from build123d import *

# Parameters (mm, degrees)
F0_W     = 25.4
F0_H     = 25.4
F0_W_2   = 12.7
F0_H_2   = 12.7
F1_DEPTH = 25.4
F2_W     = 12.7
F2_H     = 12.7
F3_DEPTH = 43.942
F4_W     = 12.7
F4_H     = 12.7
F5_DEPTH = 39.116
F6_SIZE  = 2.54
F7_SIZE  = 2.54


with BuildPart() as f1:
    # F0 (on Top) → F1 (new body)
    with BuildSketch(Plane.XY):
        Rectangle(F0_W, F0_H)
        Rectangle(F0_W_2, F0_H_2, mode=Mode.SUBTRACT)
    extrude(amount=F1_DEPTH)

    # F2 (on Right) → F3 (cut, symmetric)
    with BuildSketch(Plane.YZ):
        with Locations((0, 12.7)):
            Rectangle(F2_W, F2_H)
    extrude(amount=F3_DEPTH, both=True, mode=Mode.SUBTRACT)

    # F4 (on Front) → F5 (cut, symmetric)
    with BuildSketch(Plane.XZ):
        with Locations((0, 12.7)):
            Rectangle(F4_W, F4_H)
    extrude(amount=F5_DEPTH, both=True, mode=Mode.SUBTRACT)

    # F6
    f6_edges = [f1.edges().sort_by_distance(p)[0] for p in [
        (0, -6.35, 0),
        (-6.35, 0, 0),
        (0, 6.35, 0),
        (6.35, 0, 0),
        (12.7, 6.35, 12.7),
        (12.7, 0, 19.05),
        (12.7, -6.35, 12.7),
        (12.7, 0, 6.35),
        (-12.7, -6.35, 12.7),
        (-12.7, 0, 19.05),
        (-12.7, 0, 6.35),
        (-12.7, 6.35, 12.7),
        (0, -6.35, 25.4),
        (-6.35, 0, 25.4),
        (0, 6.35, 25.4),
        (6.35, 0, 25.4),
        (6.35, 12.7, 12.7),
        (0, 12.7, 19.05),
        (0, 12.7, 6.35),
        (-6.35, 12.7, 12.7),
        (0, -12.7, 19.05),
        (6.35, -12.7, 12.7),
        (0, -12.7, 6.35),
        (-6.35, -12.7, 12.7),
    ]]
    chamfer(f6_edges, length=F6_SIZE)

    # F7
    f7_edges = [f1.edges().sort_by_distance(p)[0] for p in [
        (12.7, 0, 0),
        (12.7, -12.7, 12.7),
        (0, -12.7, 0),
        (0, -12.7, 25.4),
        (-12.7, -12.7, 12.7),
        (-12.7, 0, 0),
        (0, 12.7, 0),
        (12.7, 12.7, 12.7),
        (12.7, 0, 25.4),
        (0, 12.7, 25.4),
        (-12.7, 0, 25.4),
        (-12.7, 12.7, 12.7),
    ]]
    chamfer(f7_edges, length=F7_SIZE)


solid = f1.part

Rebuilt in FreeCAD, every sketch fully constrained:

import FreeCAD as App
import Part
import Sketcher
from FreeCAD import Vector
Q = App.Units.Quantity


def edges_at(feature, points):
    """Names of the edges that pass closest to the given points."""
    edges = feature.Shape.Edges
    near = lambda p: min(range(len(edges)), key=lambda i: edges[i].distToShape(Part.Vertex(*p))[0])
    return sorted({f"Edge{near(p) + 1}" for p in points})

doc = App.newDocument("Part")
body = doc.addObject("PartDesign::Body", "Body")

# Sketch on XY plane
sketch1 = body.newObject("Sketcher::SketchObject", "Sketch")
sketch1.AttachmentSupport = (doc.getObject("XY_Plane"), [""])
sketch1.MapMode = "FlatFace"
sketch1.addGeometry([
    Part.LineSegment(Vector(-12.7, 12.7, 0), Vector(-12.7, -12.7, 0)),  # 0
    Part.LineSegment(Vector(-12.7, -12.7, 0), Vector(12.7, -12.7, 0)),  # 1
    Part.LineSegment(Vector(12.7, -12.7, 0), Vector(12.7, 12.7, 0)),  # 2
    Part.LineSegment(Vector(12.7, 12.7, 0), Vector(-12.7, 12.7, 0)),  # 3
    Part.LineSegment(Vector(6.35, -6.35, 0), Vector(-6.35, -6.35, 0)),  # 4
    Part.LineSegment(Vector(-6.35, -6.35, 0), Vector(-6.35, 6.35, 0)),  # 5
    Part.LineSegment(Vector(-6.35, 6.35, 0), Vector(6.35, 6.35, 0)),  # 6
    Part.LineSegment(Vector(6.35, 6.35, 0), Vector(6.35, -6.35, 0)),  # 7
], False)
sketch1.addConstraint([
    Sketcher.Constraint("Coincident", 0, 2, 1, 1),
    Sketcher.Constraint("Coincident", 1, 2, 2, 1),
    Sketcher.Constraint("Coincident", 2, 2, 3, 1),
    Sketcher.Constraint("Coincident", 3, 2, 0, 1),
    Sketcher.Constraint("Coincident", 4, 2, 5, 1),
    Sketcher.Constraint("Coincident", 5, 2, 6, 1),
    Sketcher.Constraint("Coincident", 6, 2, 7, 1),
    Sketcher.Constraint("Coincident", 7, 2, 4, 1),
    Sketcher.Constraint("Vertical", 0),
    Sketcher.Constraint("Horizontal", 1),
    Sketcher.Constraint("Vertical", 2),
    Sketcher.Constraint("Horizontal", 3),
    Sketcher.Constraint("Horizontal", 4),
    Sketcher.Constraint("Vertical", 5),
    Sketcher.Constraint("Horizontal", 6),
    Sketcher.Constraint("Vertical", 7),
    Sketcher.Constraint("Symmetric", 0, 2, 2, 2, -1, 1),
    Sketcher.Constraint("Symmetric", 4, 2, 6, 2, -1, 1),
    Sketcher.Constraint("Equal", 3, 0),
    Sketcher.Constraint("Equal", 6, 5),
    Sketcher.Constraint("DistanceX", 1, 1, 1, 2, Q("1 in")),
    Sketcher.Constraint("DistanceX", 4, 2, 4, 1, Q("0.5 in")),
])
pad1 = body.newObject("PartDesign::Pad", "Pad")
pad1.Profile = sketch1
pad1.Length = Q("1 in")

# Sketch on YZ plane
sketch2 = body.newObject("Sketcher::SketchObject", "Sketch001")
sketch2.AttachmentSupport = (doc.getObject("YZ_Plane"), [""])
sketch2.MapMode = "FlatFace"
sketch2.addGeometry([
    Part.LineSegment(Vector(-6.35, 19.05, 0), Vector(-6.35, 6.35, 0)),
    Part.LineSegment(Vector(-6.35, 6.35, 0), Vector(6.35, 6.35, 0)),
    Part.LineSegment(Vector(6.35, 6.35, 0), Vector(6.35, 19.05, 0)),
    Part.LineSegment(Vector(6.35, 19.05, 0), Vector(-6.35, 19.05, 0)),
], False)
sketch2.addConstraint([
    Sketcher.Constraint("Coincident", 0, 2, 1, 1),
    Sketcher.Constraint("Coincident", 1, 2, 2, 1),
    Sketcher.Constraint("Coincident", 2, 2, 3, 1),
    Sketcher.Constraint("Coincident", 3, 2, 0, 1),
    Sketcher.Constraint("Vertical", 0),
    Sketcher.Constraint("Horizontal", 1),
    Sketcher.Constraint("Vertical", 2),
    Sketcher.Constraint("Horizontal", 3),
    Sketcher.Constraint("Equal", 3, 0),
    Sketcher.Constraint("DistanceX", 1, 1, 1, 2, Q("0.5 in")),
    Sketcher.Constraint("DistanceX", 0, 2, -1, 1, Q("0.25 in")),
    Sketcher.Constraint("DistanceY", -1, 1, 0, 2, Q("0.25 in")),
])
pocket1 = body.newObject("PartDesign::Pocket", "Pocket")
pocket1.Profile = sketch2
pocket1.Length = Q("3.46 in")
pocket1.Midplane = True

# Sketch on XZ plane
sketch3 = body.newObject("Sketcher::SketchObject", "Sketch002")
sketch3.AttachmentSupport = (doc.getObject("XZ_Plane"), [""])
sketch3.MapMode = "FlatFace"
sketch3.addGeometry([
    Part.LineSegment(Vector(-6.35, 19.05, 0), Vector(-6.35, 6.35, 0)),
    Part.LineSegment(Vector(-6.35, 6.35, 0), Vector(6.35, 6.35, 0)),
    Part.LineSegment(Vector(6.35, 6.35, 0), Vector(6.35, 19.05, 0)),
    Part.LineSegment(Vector(6.35, 19.05, 0), Vector(-6.35, 19.05, 0)),
], False)
sketch3.addConstraint([
    Sketcher.Constraint("Coincident", 0, 2, 1, 1),
    Sketcher.Constraint("Coincident", 1, 2, 2, 1),
    Sketcher.Constraint("Coincident", 2, 2, 3, 1),
    Sketcher.Constraint("Coincident", 3, 2, 0, 1),
    Sketcher.Constraint("Vertical", 0),
    Sketcher.Constraint("Horizontal", 1),
    Sketcher.Constraint("Vertical", 2),
    Sketcher.Constraint("Horizontal", 3),
    Sketcher.Constraint("Equal", 3, 0),
    Sketcher.Constraint("DistanceX", 1, 1, 1, 2, Q("0.5 in")),
    Sketcher.Constraint("DistanceX", 0, 2, -1, 1, Q("0.25 in")),
    Sketcher.Constraint("DistanceY", -1, 1, 0, 2, Q("0.25 in")),
])
pocket2 = body.newObject("PartDesign::Pocket", "Pocket001")
pocket2.Profile = sketch3
pocket2.Length = Q("3.08 in")
pocket2.Midplane = True
doc.recompute()

chamfer = body.newObject("PartDesign::Chamfer", "Chamfer")
chamfer.Base = (pocket2, edges_at(pocket2, [
    (0, -6.35, 0),
    (-6.35, 0, 0),
    (0, 6.35, 0),
    (6.35, 0, 0),
    (12.7, 6.35, 12.7),
    (12.7, 0, 19.05),
    (12.7, -6.35, 12.7),
    (12.7, 0, 6.35),
    (-12.7, -6.35, 12.7),
    (-12.7, 0, 19.05),
    (-12.7, 0, 6.35),
    (-12.7, 6.35, 12.7),
    (0, -6.35, 25.4),
    (-6.35, 0, 25.4),
    (0, 6.35, 25.4),
    (6.35, 0, 25.4),
    (6.35, 12.7, 12.7),
    (0, 12.7, 19.05),
    (0, 12.7, 6.35),
    (-6.35, 12.7, 12.7),
    (0, -12.7, 19.05),
    (6.35, -12.7, 12.7),
    (0, -12.7, 6.35),
    (-6.35, -12.7, 12.7),
]))
chamfer.Size = Q("0.1 in")
doc.recompute()

chamfer2 = body.newObject("PartDesign::Chamfer", "Chamfer001")
chamfer2.Base = (chamfer, edges_at(chamfer, [
    (12.7, 0, 0),
    (12.7, -12.7, 12.7),
    (0, -12.7, 0),
    (0, -12.7, 25.4),
    (-12.7, -12.7, 12.7),
    (-12.7, 0, 0),
    (0, 12.7, 0),
    (12.7, 12.7, 12.7),
    (12.7, 0, 25.4),
    (0, 12.7, 25.4),
    (-12.7, 0, 25.4),
    (-12.7, 12.7, 12.7),
]))
chamfer2.Size = Q("0.1 in")

doc.recompute()
